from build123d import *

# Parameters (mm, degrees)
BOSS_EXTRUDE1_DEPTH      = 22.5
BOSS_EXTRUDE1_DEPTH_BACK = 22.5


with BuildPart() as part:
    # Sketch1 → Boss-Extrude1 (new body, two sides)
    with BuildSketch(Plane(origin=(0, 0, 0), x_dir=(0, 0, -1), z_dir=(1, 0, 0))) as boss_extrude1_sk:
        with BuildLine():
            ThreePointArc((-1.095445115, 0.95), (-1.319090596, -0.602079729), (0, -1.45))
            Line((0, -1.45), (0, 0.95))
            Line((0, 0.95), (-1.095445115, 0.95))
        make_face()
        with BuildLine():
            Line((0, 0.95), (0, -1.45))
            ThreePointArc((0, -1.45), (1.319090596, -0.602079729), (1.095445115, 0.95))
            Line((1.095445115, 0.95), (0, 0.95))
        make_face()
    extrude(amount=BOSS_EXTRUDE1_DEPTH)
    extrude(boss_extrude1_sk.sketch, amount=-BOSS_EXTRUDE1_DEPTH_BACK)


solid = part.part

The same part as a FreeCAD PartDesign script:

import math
import FreeCAD as App
import Part
import Sketcher
Q = App.Units.Quantity

doc = App.newDocument("Part")
params = doc.addObject("Spreadsheet::Sheet", "Params")
for row, (alias, value) in enumerate([
    ("sketch1_radius", "1.45 mm"),
    ("pad1_length", "22.5 mm"),
    ("pad1_length2", "22.5 mm"),
], start=1):
    params.set(f"A{row}", alias)
    params.set(f"B{row}", "=" + value)
    params.setAlias(f"B{row}", alias)

body = doc.addObject("PartDesign::Body", "Body")

# Sketch on YZ plane
sketch1 = body.newObject("Sketcher::SketchObject", "Sketch")
sketch1.AttachmentSupport = (doc.getObject("YZ_Plane"), [""])
sketch1.MapMode = "FlatFace"
sketch1.addGeometry(Part.ArcOfCircle(Part.Circle(App.Vector(0, 0, 0), App.Vector(0, 0, 1), 1.4), math.radians(49), math.radians(180)), False)
sketch1.addGeometry(Part.ArcOfCircle(Part.Circle(App.Vector(0, 0, 0), App.Vector(0, 0, 1), 1.4), math.radians(180), math.radians(311)), False)
sketch1.addGeometry(Part.LineSegment(App.Vector(0.9, -1.1, 0), App.Vector(0.9, 1.1, 0)), False)
sketch1.addConstraint(Sketcher.Constraint("Tangent", 0, 2, 1, 1))
sketch1.addConstraint(Sketcher.Constraint("Coincident", 1, 2, 2, 1))
sketch1.addConstraint(Sketcher.Constraint("Coincident", 2, 2, 0, 1))
sketch1.addConstraint(Sketcher.Constraint("Vertical", 2))
sketch1.addConstraint(Sketcher.Constraint("Coincident", 0, 3, -1, 1))
sketch1.addConstraint(Sketcher.Constraint("Equal", 0, 1))
sketch1.addConstraint(Sketcher.Constraint("PointOnObject", 0, 2, -1))
sketch1.addConstraint(Sketcher.Constraint("Radius", 0, Q("1.45 mm")))
sketch1.addConstraint(Sketcher.Constraint("DistanceX", 0, 2, 1, 2, Q("2.4 mm")))
sketch1.setExpression("Constraints[7]", "Params.sketch1_radius")
pad1 = body.newObject("PartDesign::Pad", "Pad")
pad1.Profile = sketch1
pad1.Type = "TwoLengths"
pad1.setExpression("Length", "Params.pad1_length")
pad1.setExpression("Length2", "Params.pad1_length2")

doc.recompute()
